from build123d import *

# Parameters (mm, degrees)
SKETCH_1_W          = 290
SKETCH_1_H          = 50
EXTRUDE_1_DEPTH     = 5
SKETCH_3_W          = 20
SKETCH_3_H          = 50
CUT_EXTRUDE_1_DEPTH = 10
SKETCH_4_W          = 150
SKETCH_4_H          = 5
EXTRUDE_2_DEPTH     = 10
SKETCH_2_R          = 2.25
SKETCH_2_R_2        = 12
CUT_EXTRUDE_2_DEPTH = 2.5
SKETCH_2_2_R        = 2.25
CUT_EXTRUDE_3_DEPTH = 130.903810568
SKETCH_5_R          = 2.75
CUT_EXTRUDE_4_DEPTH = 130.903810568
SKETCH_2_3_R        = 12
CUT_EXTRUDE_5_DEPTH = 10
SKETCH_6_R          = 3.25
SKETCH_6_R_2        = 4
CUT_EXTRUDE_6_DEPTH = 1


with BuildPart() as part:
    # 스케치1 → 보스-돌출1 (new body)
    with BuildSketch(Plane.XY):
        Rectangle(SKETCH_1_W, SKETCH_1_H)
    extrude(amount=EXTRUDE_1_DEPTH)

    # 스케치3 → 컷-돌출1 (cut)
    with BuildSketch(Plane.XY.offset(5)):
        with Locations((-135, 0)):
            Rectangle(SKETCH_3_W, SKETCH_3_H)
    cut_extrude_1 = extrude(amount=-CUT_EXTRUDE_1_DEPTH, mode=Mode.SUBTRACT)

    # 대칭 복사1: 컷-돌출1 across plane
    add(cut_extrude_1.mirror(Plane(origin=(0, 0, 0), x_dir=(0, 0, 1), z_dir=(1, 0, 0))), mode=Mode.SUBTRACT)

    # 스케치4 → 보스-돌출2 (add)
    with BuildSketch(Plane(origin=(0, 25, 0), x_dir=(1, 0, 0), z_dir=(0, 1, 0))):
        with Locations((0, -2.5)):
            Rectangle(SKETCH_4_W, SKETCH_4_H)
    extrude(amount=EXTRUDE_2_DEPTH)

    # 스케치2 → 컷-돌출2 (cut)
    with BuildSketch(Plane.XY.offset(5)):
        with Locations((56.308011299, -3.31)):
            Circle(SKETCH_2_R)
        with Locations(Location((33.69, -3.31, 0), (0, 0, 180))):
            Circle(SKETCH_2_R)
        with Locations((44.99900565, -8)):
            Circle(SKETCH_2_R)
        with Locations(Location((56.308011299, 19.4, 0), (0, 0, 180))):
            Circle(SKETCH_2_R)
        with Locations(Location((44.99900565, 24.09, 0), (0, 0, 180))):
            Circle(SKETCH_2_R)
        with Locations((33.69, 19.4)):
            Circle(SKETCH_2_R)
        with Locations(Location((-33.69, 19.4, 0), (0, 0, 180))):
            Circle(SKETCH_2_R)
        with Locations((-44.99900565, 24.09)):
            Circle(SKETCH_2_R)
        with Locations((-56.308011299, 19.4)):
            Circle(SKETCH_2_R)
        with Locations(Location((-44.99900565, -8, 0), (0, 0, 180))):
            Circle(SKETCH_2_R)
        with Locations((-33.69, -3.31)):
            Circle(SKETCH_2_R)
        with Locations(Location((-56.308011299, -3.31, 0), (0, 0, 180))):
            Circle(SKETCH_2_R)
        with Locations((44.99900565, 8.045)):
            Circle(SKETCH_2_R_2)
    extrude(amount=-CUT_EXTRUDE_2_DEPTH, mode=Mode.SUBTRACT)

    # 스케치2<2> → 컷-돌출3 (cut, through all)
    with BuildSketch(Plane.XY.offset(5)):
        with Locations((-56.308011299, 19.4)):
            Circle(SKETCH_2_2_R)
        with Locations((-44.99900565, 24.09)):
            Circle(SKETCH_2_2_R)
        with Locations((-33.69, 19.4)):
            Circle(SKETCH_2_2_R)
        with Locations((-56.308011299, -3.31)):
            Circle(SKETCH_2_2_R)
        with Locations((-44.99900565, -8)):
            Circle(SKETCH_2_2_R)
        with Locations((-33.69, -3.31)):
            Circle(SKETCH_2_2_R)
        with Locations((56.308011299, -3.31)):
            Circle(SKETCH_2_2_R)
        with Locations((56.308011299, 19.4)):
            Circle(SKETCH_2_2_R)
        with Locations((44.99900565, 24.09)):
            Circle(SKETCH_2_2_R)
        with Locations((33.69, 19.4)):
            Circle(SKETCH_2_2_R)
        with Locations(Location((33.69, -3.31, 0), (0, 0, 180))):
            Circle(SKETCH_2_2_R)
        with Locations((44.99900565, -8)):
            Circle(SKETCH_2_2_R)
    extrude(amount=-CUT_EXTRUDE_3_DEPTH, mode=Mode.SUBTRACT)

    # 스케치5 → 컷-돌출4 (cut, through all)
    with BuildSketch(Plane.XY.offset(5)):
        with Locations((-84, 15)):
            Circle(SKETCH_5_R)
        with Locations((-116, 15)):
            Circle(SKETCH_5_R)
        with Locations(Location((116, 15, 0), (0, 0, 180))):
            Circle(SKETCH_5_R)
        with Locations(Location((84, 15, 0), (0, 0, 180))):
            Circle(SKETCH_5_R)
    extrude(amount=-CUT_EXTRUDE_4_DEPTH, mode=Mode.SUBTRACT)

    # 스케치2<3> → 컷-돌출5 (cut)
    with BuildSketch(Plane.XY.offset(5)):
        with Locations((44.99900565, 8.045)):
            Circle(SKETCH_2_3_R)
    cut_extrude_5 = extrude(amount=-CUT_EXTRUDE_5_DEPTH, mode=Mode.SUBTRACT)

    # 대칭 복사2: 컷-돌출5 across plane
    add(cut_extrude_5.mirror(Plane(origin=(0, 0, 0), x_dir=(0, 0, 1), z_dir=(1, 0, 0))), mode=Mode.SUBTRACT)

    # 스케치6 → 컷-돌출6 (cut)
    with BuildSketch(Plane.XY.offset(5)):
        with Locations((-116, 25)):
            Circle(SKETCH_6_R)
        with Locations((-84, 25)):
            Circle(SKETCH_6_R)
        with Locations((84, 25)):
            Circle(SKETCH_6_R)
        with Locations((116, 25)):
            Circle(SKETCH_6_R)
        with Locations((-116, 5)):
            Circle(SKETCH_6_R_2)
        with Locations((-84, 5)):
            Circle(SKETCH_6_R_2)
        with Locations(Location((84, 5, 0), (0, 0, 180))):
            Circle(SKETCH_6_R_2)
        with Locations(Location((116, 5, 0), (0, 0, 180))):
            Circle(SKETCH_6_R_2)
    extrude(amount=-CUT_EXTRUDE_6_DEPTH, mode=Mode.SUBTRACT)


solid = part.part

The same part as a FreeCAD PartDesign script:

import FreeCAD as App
import Part
import Sketcher

V = App.Vector
Q = App.Units.Quantity

doc = App.newDocument("Part")
body = doc.addObject("PartDesign::Body", "Body")

# Sketch on XY plane
sketch1 = body.newObject("Sketcher::SketchObject", "Sketch")
sketch1.AttachmentSupport = (doc.getObject("XY_Plane"), [""])
sketch1.MapMode = "FlatFace"
sketch1.addGeometry(Part.LineSegment(V(-145, 25, 0), V(-145, -25, 0)), False)
sketch1.addGeometry(Part.LineSegment(V(-145, -25, 0), V(145, -25, 0)), False)
sketch1.addGeometry(Part.LineSegment(V(145, -25, 0), V(145, 25, 0)), False)
sketch1.addGeometry(Part.LineSegment(V(145, 25, 0), V(-145, 25, 0)), False)
sketch1.addConstraint(Sketcher.Constraint("Coincident", 0, 2, 1, 1))
sketch1.addConstraint(Sketcher.Constraint("Coincident", 1, 2, 2, 1))
sketch1.addConstraint(Sketcher.Constraint("Coincident", 2, 2, 3, 1))
sketch1.addConstraint(Sketcher.Constraint("Coincident", 3, 2, 0, 1))
sketch1.addConstraint(Sketcher.Constraint("Vertical", 0))
sketch1.addConstraint(Sketcher.Constraint("Horizontal", 1))
sketch1.addConstraint(Sketcher.Constraint("Vertical", 2))
sketch1.addConstraint(Sketcher.Constraint("Horizontal", 3))
sketch1.addConstraint(Sketcher.Constraint("Symmetric", 0, 2, 2, 2, -1, 1))
sketch1.addConstraint(Sketcher.Constraint("DistanceX", 1, 1, 1, 2, Q("290 mm")))
sketch1.addConstraint(Sketcher.Constraint("DistanceY", 0, 2, 0, 1, Q("50 mm")))
pad1 = body.newObject("PartDesign::Pad", "Pad")
pad1.Profile = sketch1
pad1.Length = 5

# Sketch on XY plane
sketch2 = body.newObject("Sketcher::SketchObject", "Sketch001")
sketch2.AttachmentSupport = (doc.getObject("XY_Plane"), [""])
sketch2.MapMode = "FlatFace"
sketch2.AttachmentOffset = App.Placement(V(0, 0, 5), App.Rotation())
sketch2.addGeometry(Part.LineSegment(V(-145, 25, 0), V(-145, -25, 0)), False)
sketch2.addGeometry(Part.LineSegment(V(-145, -25, 0), V(-125, -25, 0)), False)
sketch2.addGeometry(Part.LineSegment(V(-125, -25, 0), V(-125, 25, 0)), False)
sketch2.addGeometry(Part.LineSegment(V(-125, 25, 0), V(-145, 25, 0)), False)
sketch2.addConstraint(Sketcher.Constraint("Coincident", 0, 2, 1, 1))
sketch2.addConstraint(Sketcher.Constraint("Coincident", 1, 2, 2, 1))
sketch2.addConstraint(Sketcher.Constraint("Coincident", 2, 2, 3, 1))
sketch2.addConstraint(Sketcher.Constraint("Coincident", 3, 2, 0, 1))
sketch2.addConstraint(Sketcher.Constraint("Vertical", 0))
sketch2.addConstraint(Sketcher.Constraint("Horizontal", 1))
sketch2.addConstraint(Sketcher.Constraint("Vertical", 2))
sketch2.addConstraint(Sketcher.Constraint("Horizontal", 3))
sketch2.addConstraint(Sketcher.Constraint("DistanceX", 1, 1, 1, 2, Q("20 mm")))
sketch2.addConstraint(Sketcher.Constraint("DistanceY", 0, 2, 0, 1, Q("50 mm")))
sketch2.addConstraint(Sketcher.Constraint("DistanceX", 0, 2, -1, 1, Q("145 mm")))
sketch2.addConstraint(Sketcher.Constraint("DistanceY", 0, 2, -1, 1, Q("25 mm")))
pocket1 = body.newObject("PartDesign::Pocket", "Pocket")
pocket1.Profile = sketch2
pocket1.Length = 10
doc.recompute()

mirrored = body.newObject("PartDesign::Mirrored", "Mirrored")
mirrored.Originals = [pocket1]
mirrored.MirrorPlane = (doc.getObject("YZ_Plane"), [""])
body.Tip = mirrored

# Sketch on XZ plane
sketch3 = body.newObject("Sketcher::SketchObject", "Sketch002")
sketch3.AttachmentSupport = (doc.getObject("XZ_Plane"), [""])
sketch3.MapMode = "FlatFace"
sketch3.AttachmentOffset = App.Placement(V(0, 0, -25), App.Rotation())
sketch3.addGeometry(Part.LineSegment(V(-75, 0, 0), V(-75, 5, 0)), False)
sketch3.addGeometry(Part.LineSegment(V(-75, 5, 0), V(75, 5, 0)), False)
sketch3.addGeometry(Part.LineSegment(V(75, 5, 0), V(75, 0, 0)), False)
sketch3.addGeometry(Part.LineSegment(V(75, 0, 0), V(-75, 0, 0)), False)
sketch3.addConstraint(Sketcher.Constraint("Coincident", 0, 2, 1, 1))
sketch3.addConstraint(Sketcher.Constraint("Coincident", 1, 2, 2, 1))
sketch3.addConstraint(Sketcher.Constraint("Coincident", 2, 2, 3, 1))
sketch3.addConstraint(Sketcher.Constraint("Coincident", 3, 2, 0, 1))
sketch3.addConstraint(Sketcher.Constraint("Vertical", 0))
sketch3.addConstraint(Sketcher.Constraint("Horizontal", 1))
sketch3.addConstraint(Sketcher.Constraint("Vertical", 2))
sketch3.addConstraint(Sketcher.Constraint("Horizontal", 3))
sketch3.addConstraint(Sketcher.Constraint("Symmetric", 2, 2, 3, 2, -1, 1))
sketch3.addConstraint(Sketcher.Constraint("DistanceX", 1, 1, 1, 2, Q("150 mm")))
sketch3.addConstraint(Sketcher.Constraint("DistanceY", 0, 1, 0, 2, Q("5 mm")))
pad2 = body.newObject("PartDesign::Pad", "Pad001")
pad2.Profile = sketch3
pad2.Length = 10
pad2.Reversed = True

# Sketch on XY plane
sketch4 = body.newObject("Sketcher::SketchObject", "Sketch003")
sketch4.AttachmentSupport = (doc.getObject("XY_Plane"), [""])
sketch4.MapMode = "FlatFace"
sketch4.AttachmentOffset = App.Placement(V(0, 0, 5), App.Rotation())
sketch4.addGeometry(Part.Circle(V(56.308011, -3.31, 0), V(0, 0, 1), 2.25), False)
sketch4.addGeometry(Part.Circle(V(33.69, -3.31, 0), V(0, 0, 1), 2.25), False)
sketch4.addGeometry(Part.Circle(V(44.999006, -8, 0), V(0, 0, 1), 2.25), False)
sketch4.addGeometry(Part.Circle(V(56.308011, 19.4, 0), V(0, 0, 1), 2.25), False)
sketch4.addGeometry(Part.Circle(V(44.999006, 24.09, 0), V(0, 0, 1), 2.25), False)
sketch4.addGeometry(Part.Circle(V(33.69, 19.4, 0), V(0, 0, 1), 2.25), False)
sketch4.addGeometry(Part.Circle(V(-33.69, 19.4, 0), V(0, 0, 1), 2.25), False)
sketch4.addGeometry(Part.Circle(V(-44.999006, 24.09, 0), V(0, 0, 1), 2.25), False)
sketch4.addGeometry(Part.Circle(V(-56.308011, 19.4, 0), V(0, 0, 1), 2.25), False)
sketch4.addGeometry(Part.Circle(V(-44.999006, -8, 0), V(0, 0, 1), 2.25), False)
sketch4.addGeometry(Part.Circle(V(-33.69, -3.31, 0), V(0, 0, 1), 2.25), False)
sketch4.addGeometry(Part.Circle(V(-56.308011, -3.31, 0), V(0, 0, 1), 2.25), False)
sketch4.addGeometry(Part.Circle(V(44.999006, 8.045, 0), V(0, 0, 1), 12), False)
sketch4.addConstraint(Sketcher.Constraint("Equal", 0, 1))
sketch4.addConstraint(Sketcher.Constraint("Equal", 1, 2))
sketch4.addConstraint(Sketcher.Constraint("Equal", 2, 3))
sketch4.addConstraint(Sketcher.Constraint("Equal", 3, 4))
sketch4.addConstraint(Sketcher.Constraint("Equal", 4, 5))
sketch4.addConstraint(Sketcher.Constraint("Equal", 5, 6))
sketch4.addConstraint(Sketcher.Constraint("Equal", 6, 7))
sketch4.addConstraint(Sketcher.Constraint("Equal", 7, 8))
sketch4.addConstraint(Sketcher.Constraint("Equal", 8, 9))
sketch4.addConstraint(Sketcher.Constraint("Equal", 9, 10))
sketch4.addConstraint(Sketcher.Constraint("Equal", 10, 11))
sketch4.addConstraint(Sketcher.Constraint("Symmetric", 5, 3, 6, 3, -2))
sketch4.addConstraint(Sketcher.Constraint("Symmetric", 4, 3, 7, 3, -2))
sketch4.addConstraint(Sketcher.Constraint("Symmetric", 3, 3, 8, 3, -2))
sketch4.addConstraint(Sketcher.Constraint("Symmetric", 2, 3, 9, 3, -2))
sketch4.addConstraint(Sketcher.Constraint("Symmetric", 1, 3, 10, 3, -2))
sketch4.addConstraint(Sketcher.Constraint("Symmetric", 0, 3, 11, 3, -2))
sketch4.addConstraint(Sketcher.Constraint("Horizontal", 0, 3, 1, 3))
sketch4.addConstraint(Sketcher.Constraint("Horizontal", 3, 3, 5, 3))
sketch4.addConstraint(Sketcher.Constraint("Vertical", 0, 3, 3, 3))
sketch4.addConstraint(Sketcher.Constraint("Vertical", 2, 3, 4, 3))
sketch4.addConstraint(Sketcher.Constraint("Vertical", 1, 3, 5, 3))
sketch4.addConstraint(Sketcher.Constraint("Vertical", 4, 3, 12, 3))
sketch4.addConstraint(Sketcher.Constraint("Diameter", 12, Q("24 mm")))
sketch4.addConstraint(Sketcher.Constraint("Diameter", 0, Q("4.5 mm")))
sketch4.addConstraint(Sketcher.Constraint("DistanceY", 2, 3, -1, 1, Q("8 mm")))
sketch4.addConstraint(Sketcher.Constraint("DistanceY", -1, 1, 3, 3, Q("19.4 mm")))
sketch4.addConstraint(Sketcher.Constraint("DistanceY", 0, 3, 4, 3, Q("27.4 mm")))
sketch4.addConstraint(Sketcher.Constraint("DistanceY", 0, 3, -1, 1, Q("3.31 mm")))
sketch4.addConstraint(Sketcher.Constraint("DistanceX", -1, 1, 1, 3, Q("33.69 mm")))
sketch4.addConstraint(Sketcher.Constraint("DistanceY", -1, 1, 12, 3, Q("8.045 mm")))
sketch4.addConstraint(Sketcher.Constraint("DistanceX", -1, 1, 0, 3, Q("56.308011 mm")))
sketch4.addConstraint(Sketcher.Constraint("DistanceX", 7, 3, 4, 3, Q("89.998011 mm")))
pocket2 = body.newObject("PartDesign::Pocket", "Pocket001")
pocket2.Profile = sketch4
pocket2.Length = 2.5

# Sketch on XY plane
sketch5 = body.newObject("Sketcher::SketchObject", "Sketch004")
sketch5.AttachmentSupport = (doc.getObject("XY_Plane"), [""])
sketch5.MapMode = "FlatFace"
sketch5.AttachmentOffset = App.Placement(V(0, 0, 5), App.Rotation())
sketch5.addGeometry(Part.Circle(V(-56.308011, 19.4, 0), V(0, 0, 1), 2.25), False)
sketch5.addGeometry(Part.Circle(V(-44.999006, 24.09, 0), V(0, 0, 1), 2.25), False)
sketch5.addGeometry(Part.Circle(V(-33.69, 19.4, 0), V(0, 0, 1), 2.25), False)
sketch5.addGeometry(Part.Circle(V(-56.308011, -3.31, 0), V(0, 0, 1), 2.25), False)
sketch5.addGeometry(Part.Circle(V(-44.999006, -8, 0), V(0, 0, 1), 2.25), False)
sketch5.addGeometry(Part.Circle(V(-33.69, -3.31, 0), V(0, 0, 1), 2.25), False)
sketch5.addGeometry(Part.Circle(V(56.308011, -3.31, 0), V(0, 0, 1), 2.25), False)
sketch5.addGeometry(Part.Circle(V(56.308011, 19.4, 0), V(0, 0, 1), 2.25), False)
sketch5.addGeometry(Part.Circle(V(44.999006, 24.09, 0), V(0, 0, 1), 2.25), False)
sketch5.addGeometry(Part.Circle(V(33.69, 19.4, 0), V(0, 0, 1), 2.25), False)
sketch5.addGeometry(Part.Circle(V(33.69, -3.31, 0), V(0, 0, 1), 2.25), False)
sketch5.addGeometry(Part.Circle(V(44.999006, -8, 0), V(0, 0, 1), 2.25), False)
sketch5.addConstraint(Sketcher.Constraint("Equal", 0, 1))
sketch5.addConstraint(Sketcher.Constraint("Equal", 1, 2))
sketch5.addConstraint(Sketcher.Constraint("Equal", 2, 3))
sketch5.addConstraint(Sketcher.Constraint("Equal", 3, 4))
sketch5.addConstraint(Sketcher.Constraint("Equal", 4, 5))
sketch5.addConstraint(Sketcher.Constraint("Equal", 5, 6))
sketch5.addConstraint(Sketcher.Constraint("Equal", 6, 7))
sketch5.addConstraint(Sketcher.Constraint("Equal", 7, 8))
sketch5.addConstraint(Sketcher.Constraint("Equal", 8, 9))
sketch5.addConstraint(Sketcher.Constraint("Equal", 9, 10))
sketch5.addConstraint(Sketcher.Constraint("Equal", 10, 11))
sketch5.addConstraint(Sketcher.Constraint("Symmetric", 3, 3, 6, 3, -2))
sketch5.addConstraint(Sketcher.Constraint("Symmetric", 0, 3, 7, 3, -2))
sketch5.addConstraint(Sketcher.Constraint("Symmetric", 1, 3, 8, 3, -2))
sketch5.addConstraint(Sketcher.Constraint("Symmetric", 2, 3, 9, 3, -2))
sketch5.addConstraint(Sketcher.Constraint("Symmetric", 5, 3, 10, 3, -2))
sketch5.addConstraint(Sketcher.Constraint("Symmetric", 4, 3, 11, 3, -2))
sketch5.addConstraint(Sketcher.Constraint("Horizontal", 0, 3, 2, 3))
sketch5.addConstraint(Sketcher.Constraint("Horizontal", 3, 3, 5, 3))
sketch5.addConstraint(Sketcher.Constraint("Vertical", 0, 3, 3, 3))
sketch5.addConstraint(Sketcher.Constraint("Vertical", 1, 3, 4, 3))
sketch5.addConstraint(Sketcher.Constraint("Vertical", 2, 3, 5, 3))
sketch5.addConstraint(Sketcher.Constraint("Diameter", 0, Q("4.5 mm")))
sketch5.addConstraint(Sketcher.Constraint("DistanceY", 4, 3, -1, 1, Q("8 mm")))
sketch5.addConstraint(Sketcher.Constraint("DistanceY", -1, 1, 0, 3, Q("19.4 mm")))
sketch5.addConstraint(Sketcher.Constraint("DistanceY", 3, 3, 1, 3, Q("27.4 mm")))
sketch5.addConstraint(Sketcher.Constraint("DistanceY", -1, 1, 1, 3, Q("24.09 mm")))
sketch5.addConstraint(Sketcher.Constraint("DistanceX", 2, 3, -1, 1, Q("33.69 mm")))
sketch5.addConstraint(Sketcher.Constraint("DistanceX", 0, 3, -1, 1, Q("56.308011 mm")))
sketch5.addConstraint(Sketcher.Constraint("DistanceX", 1, 3, 8, 3, Q("89.998011 mm")))
pocket3 = body.newObject("PartDesign::Pocket", "Pocket002")
pocket3.Profile = sketch5
pocket3.Type = "ThroughAll"

# Sketch on XY plane
sketch6 = body.newObject("Sketcher::SketchObject", "Sketch005")
sketch6.AttachmentSupport = (doc.getObject("XY_Plane"), [""])
sketch6.MapMode = "FlatFace"
sketch6.AttachmentOffset = App.Placement(V(0, 0, 5), App.Rotation())
sketch6.addGeometry(Part.Circle(V(-84, 15, 0), V(0, 0, 1), 2.75), False)
sketch6.addGeometry(Part.Circle(V(-116, 15, 0), V(0, 0, 1), 2.75), False)
sketch6.addGeometry(Part.Circle(V(116, 15, 0), V(0, 0, 1), 2.75), False)
sketch6.addGeometry(Part.Circle(V(84, 15, 0), V(0, 0, 1), 2.75), False)
sketch6.addConstraint(Sketcher.Constraint("Equal", 0, 1))
sketch6.addConstraint(Sketcher.Constraint("Equal", 1, 2))
sketch6.addConstraint(Sketcher.Constraint("Equal", 2, 3))
sketch6.addConstraint(Sketcher.Constraint("Symmetric", 1, 3, 2, 3, -2))
sketch6.addConstraint(Sketcher.Constraint("Symmetric", 0, 3, 3, 3, -2))
sketch6.addConstraint(Sketcher.Constraint("Horizontal", 0, 3, 1, 3))
sketch6.addConstraint(Sketcher.Constraint("Diameter", 0, Q("5.5 mm")))
sketch6.addConstraint(Sketcher.Constraint("DistanceX", 0, 3, -1, 1, Q("84 mm")))
sketch6.addConstraint(Sketcher.Constraint("DistanceY", -1, 1, 0, 3, Q("15 mm")))
sketch6.addConstraint(Sketcher.Constraint("DistanceX", 1, 3, -1, 1, Q("116 mm")))
pocket4 = body.newObject("PartDesign::Pocket", "Pocket003")
pocket4.Profile = sketch6
pocket4.Type = "ThroughAll"

# Sketch on XY plane
sketch7 = body.newObject("Sketcher::SketchObject", "Sketch006")
sketch7.AttachmentSupport = (doc.getObject("XY_Plane"), [""])
sketch7.MapMode = "FlatFace"
sketch7.AttachmentOffset = App.Placement(V(0, 0, 5), App.Rotation())
sketch7.addGeometry(Part.Circle(V(44.999006, 8.045, 0), V(0, 0, 1), 12), False)
sketch7.addConstraint(Sketcher.Constraint("Diameter", 0, Q("24 mm")))
sketch7.addConstraint(Sketcher.Constraint("DistanceY", -1, 1, 0, 3, Q("8.045 mm")))
sketch7.addConstraint(Sketcher.Constraint("DistanceX", -1, 1, 0, 3, Q("44.999006 mm")))
pocket5 = body.newObject("PartDesign::Pocket", "Pocket004")
pocket5.Profile = sketch7
pocket5.Length = 10
doc.recompute()

mirrored2 = body.newObject("PartDesign::Mirrored", "Mirrored001")
mirrored2.Originals = [pocket5]
mirrored2.MirrorPlane = (doc.getObject("YZ_Plane"), [""])
body.Tip = mirrored2

# Sketch on XY plane
sketch8 = body.newObject("Sketcher::SketchObject", "Sketch007")
sketch8.AttachmentSupport = (doc.getObject("XY_Plane"), [""])
sketch8.MapMode = "FlatFace"
sketch8.AttachmentOffset = App.Placement(V(0, 0, 5), App.Rotation())
sketch8.addGeometry(Part.Circle(V(-116, 25, 0), V(0, 0, 1), 3.25), False)
sketch8.addGeometry(Part.Circle(V(-84, 25, 0), V(0, 0, 1), 3.25), False)
sketch8.addGeometry(Part.Circle(V(84, 25, 0), V(0, 0, 1), 3.25), False)
sketch8.addGeometry(Part.Circle(V(116, 25, 0), V(0, 0, 1), 3.25), False)
sketch8.addGeometry(Part.Circle(V(-116, 5, 0), V(0, 0, 1), 4), False)
sketch8.addGeometry(Part.Circle(V(-84, 5, 0), V(0, 0, 1), 4), False)
sketch8.addGeometry(Part.Circle(V(84, 5, 0), V(0, 0, 1), 4), False)
sketch8.addGeometry(Part.Circle(V(116, 5, 0), V(0, 0, 1), 4), False)
sketch8.addConstraint(Sketcher.Constraint("Equal", 0, 1))
sketch8.addConstraint(Sketcher.Constraint("Equal", 1, 2))
sketch8.addConstraint(Sketcher.Constraint("Equal", 2, 3))
sketch8.addConstraint(Sketcher.Constraint("Equal", 4, 5))
sketch8.addConstraint(Sketcher.Constraint("Equal", 5, 6))
sketch8.addConstraint(Sketcher.Constraint("Equal", 6, 7))
sketch8.addConstraint(Sketcher.Constraint("Symmetric", 1, 3, 2, 3, -2))
sketch8.addConstraint(Sketcher.Constraint("Symmetric", 0, 3, 3, 3, -2))
sketch8.addConstraint(Sketcher.Constraint("Symmetric", 5, 3, 6, 3, -2))
sketch8.addConstraint(Sketcher.Constraint("Symmetric", 4, 3, 7, 3, -2))
sketch8.addConstraint(Sketcher.Constraint("Horizontal", 0, 3, 1, 3))
sketch8.addConstraint(Sketcher.Constraint("Horizontal", 4, 3, 5, 3))
sketch8.addConstraint(Sketcher.Constraint("Vertical", 0, 3, 4, 3))
sketch8.addConstraint(Sketcher.Constraint("Vertical", 1, 3, 5, 3))
sketch8.addConstraint(Sketcher.Constraint("Diameter", 4, Q("8 mm")))
sketch8.addConstraint(Sketcher.Constraint("Diameter", 0, Q("6.5 mm")))
sketch8.addConstraint(Sketcher.Constraint("DistanceX", 0, 3, -1, 1, Q("116 mm")))
sketch8.addConstraint(Sketcher.Constraint("DistanceY", -1, 1, 0, 3, Q("25 mm")))
sketch8.addConstraint(Sketcher.Constraint("DistanceX", 1, 3, -1, 1, Q("84 mm")))
sketch8.addConstraint(Sketcher.Constraint("DistanceY", -1, 1, 4, 3, Q("5 mm")))
pocket6 = body.newObject("PartDesign::Pocket", "Pocket005")
pocket6.Profile = sketch8
pocket6.Length = 1

doc.recompute()
